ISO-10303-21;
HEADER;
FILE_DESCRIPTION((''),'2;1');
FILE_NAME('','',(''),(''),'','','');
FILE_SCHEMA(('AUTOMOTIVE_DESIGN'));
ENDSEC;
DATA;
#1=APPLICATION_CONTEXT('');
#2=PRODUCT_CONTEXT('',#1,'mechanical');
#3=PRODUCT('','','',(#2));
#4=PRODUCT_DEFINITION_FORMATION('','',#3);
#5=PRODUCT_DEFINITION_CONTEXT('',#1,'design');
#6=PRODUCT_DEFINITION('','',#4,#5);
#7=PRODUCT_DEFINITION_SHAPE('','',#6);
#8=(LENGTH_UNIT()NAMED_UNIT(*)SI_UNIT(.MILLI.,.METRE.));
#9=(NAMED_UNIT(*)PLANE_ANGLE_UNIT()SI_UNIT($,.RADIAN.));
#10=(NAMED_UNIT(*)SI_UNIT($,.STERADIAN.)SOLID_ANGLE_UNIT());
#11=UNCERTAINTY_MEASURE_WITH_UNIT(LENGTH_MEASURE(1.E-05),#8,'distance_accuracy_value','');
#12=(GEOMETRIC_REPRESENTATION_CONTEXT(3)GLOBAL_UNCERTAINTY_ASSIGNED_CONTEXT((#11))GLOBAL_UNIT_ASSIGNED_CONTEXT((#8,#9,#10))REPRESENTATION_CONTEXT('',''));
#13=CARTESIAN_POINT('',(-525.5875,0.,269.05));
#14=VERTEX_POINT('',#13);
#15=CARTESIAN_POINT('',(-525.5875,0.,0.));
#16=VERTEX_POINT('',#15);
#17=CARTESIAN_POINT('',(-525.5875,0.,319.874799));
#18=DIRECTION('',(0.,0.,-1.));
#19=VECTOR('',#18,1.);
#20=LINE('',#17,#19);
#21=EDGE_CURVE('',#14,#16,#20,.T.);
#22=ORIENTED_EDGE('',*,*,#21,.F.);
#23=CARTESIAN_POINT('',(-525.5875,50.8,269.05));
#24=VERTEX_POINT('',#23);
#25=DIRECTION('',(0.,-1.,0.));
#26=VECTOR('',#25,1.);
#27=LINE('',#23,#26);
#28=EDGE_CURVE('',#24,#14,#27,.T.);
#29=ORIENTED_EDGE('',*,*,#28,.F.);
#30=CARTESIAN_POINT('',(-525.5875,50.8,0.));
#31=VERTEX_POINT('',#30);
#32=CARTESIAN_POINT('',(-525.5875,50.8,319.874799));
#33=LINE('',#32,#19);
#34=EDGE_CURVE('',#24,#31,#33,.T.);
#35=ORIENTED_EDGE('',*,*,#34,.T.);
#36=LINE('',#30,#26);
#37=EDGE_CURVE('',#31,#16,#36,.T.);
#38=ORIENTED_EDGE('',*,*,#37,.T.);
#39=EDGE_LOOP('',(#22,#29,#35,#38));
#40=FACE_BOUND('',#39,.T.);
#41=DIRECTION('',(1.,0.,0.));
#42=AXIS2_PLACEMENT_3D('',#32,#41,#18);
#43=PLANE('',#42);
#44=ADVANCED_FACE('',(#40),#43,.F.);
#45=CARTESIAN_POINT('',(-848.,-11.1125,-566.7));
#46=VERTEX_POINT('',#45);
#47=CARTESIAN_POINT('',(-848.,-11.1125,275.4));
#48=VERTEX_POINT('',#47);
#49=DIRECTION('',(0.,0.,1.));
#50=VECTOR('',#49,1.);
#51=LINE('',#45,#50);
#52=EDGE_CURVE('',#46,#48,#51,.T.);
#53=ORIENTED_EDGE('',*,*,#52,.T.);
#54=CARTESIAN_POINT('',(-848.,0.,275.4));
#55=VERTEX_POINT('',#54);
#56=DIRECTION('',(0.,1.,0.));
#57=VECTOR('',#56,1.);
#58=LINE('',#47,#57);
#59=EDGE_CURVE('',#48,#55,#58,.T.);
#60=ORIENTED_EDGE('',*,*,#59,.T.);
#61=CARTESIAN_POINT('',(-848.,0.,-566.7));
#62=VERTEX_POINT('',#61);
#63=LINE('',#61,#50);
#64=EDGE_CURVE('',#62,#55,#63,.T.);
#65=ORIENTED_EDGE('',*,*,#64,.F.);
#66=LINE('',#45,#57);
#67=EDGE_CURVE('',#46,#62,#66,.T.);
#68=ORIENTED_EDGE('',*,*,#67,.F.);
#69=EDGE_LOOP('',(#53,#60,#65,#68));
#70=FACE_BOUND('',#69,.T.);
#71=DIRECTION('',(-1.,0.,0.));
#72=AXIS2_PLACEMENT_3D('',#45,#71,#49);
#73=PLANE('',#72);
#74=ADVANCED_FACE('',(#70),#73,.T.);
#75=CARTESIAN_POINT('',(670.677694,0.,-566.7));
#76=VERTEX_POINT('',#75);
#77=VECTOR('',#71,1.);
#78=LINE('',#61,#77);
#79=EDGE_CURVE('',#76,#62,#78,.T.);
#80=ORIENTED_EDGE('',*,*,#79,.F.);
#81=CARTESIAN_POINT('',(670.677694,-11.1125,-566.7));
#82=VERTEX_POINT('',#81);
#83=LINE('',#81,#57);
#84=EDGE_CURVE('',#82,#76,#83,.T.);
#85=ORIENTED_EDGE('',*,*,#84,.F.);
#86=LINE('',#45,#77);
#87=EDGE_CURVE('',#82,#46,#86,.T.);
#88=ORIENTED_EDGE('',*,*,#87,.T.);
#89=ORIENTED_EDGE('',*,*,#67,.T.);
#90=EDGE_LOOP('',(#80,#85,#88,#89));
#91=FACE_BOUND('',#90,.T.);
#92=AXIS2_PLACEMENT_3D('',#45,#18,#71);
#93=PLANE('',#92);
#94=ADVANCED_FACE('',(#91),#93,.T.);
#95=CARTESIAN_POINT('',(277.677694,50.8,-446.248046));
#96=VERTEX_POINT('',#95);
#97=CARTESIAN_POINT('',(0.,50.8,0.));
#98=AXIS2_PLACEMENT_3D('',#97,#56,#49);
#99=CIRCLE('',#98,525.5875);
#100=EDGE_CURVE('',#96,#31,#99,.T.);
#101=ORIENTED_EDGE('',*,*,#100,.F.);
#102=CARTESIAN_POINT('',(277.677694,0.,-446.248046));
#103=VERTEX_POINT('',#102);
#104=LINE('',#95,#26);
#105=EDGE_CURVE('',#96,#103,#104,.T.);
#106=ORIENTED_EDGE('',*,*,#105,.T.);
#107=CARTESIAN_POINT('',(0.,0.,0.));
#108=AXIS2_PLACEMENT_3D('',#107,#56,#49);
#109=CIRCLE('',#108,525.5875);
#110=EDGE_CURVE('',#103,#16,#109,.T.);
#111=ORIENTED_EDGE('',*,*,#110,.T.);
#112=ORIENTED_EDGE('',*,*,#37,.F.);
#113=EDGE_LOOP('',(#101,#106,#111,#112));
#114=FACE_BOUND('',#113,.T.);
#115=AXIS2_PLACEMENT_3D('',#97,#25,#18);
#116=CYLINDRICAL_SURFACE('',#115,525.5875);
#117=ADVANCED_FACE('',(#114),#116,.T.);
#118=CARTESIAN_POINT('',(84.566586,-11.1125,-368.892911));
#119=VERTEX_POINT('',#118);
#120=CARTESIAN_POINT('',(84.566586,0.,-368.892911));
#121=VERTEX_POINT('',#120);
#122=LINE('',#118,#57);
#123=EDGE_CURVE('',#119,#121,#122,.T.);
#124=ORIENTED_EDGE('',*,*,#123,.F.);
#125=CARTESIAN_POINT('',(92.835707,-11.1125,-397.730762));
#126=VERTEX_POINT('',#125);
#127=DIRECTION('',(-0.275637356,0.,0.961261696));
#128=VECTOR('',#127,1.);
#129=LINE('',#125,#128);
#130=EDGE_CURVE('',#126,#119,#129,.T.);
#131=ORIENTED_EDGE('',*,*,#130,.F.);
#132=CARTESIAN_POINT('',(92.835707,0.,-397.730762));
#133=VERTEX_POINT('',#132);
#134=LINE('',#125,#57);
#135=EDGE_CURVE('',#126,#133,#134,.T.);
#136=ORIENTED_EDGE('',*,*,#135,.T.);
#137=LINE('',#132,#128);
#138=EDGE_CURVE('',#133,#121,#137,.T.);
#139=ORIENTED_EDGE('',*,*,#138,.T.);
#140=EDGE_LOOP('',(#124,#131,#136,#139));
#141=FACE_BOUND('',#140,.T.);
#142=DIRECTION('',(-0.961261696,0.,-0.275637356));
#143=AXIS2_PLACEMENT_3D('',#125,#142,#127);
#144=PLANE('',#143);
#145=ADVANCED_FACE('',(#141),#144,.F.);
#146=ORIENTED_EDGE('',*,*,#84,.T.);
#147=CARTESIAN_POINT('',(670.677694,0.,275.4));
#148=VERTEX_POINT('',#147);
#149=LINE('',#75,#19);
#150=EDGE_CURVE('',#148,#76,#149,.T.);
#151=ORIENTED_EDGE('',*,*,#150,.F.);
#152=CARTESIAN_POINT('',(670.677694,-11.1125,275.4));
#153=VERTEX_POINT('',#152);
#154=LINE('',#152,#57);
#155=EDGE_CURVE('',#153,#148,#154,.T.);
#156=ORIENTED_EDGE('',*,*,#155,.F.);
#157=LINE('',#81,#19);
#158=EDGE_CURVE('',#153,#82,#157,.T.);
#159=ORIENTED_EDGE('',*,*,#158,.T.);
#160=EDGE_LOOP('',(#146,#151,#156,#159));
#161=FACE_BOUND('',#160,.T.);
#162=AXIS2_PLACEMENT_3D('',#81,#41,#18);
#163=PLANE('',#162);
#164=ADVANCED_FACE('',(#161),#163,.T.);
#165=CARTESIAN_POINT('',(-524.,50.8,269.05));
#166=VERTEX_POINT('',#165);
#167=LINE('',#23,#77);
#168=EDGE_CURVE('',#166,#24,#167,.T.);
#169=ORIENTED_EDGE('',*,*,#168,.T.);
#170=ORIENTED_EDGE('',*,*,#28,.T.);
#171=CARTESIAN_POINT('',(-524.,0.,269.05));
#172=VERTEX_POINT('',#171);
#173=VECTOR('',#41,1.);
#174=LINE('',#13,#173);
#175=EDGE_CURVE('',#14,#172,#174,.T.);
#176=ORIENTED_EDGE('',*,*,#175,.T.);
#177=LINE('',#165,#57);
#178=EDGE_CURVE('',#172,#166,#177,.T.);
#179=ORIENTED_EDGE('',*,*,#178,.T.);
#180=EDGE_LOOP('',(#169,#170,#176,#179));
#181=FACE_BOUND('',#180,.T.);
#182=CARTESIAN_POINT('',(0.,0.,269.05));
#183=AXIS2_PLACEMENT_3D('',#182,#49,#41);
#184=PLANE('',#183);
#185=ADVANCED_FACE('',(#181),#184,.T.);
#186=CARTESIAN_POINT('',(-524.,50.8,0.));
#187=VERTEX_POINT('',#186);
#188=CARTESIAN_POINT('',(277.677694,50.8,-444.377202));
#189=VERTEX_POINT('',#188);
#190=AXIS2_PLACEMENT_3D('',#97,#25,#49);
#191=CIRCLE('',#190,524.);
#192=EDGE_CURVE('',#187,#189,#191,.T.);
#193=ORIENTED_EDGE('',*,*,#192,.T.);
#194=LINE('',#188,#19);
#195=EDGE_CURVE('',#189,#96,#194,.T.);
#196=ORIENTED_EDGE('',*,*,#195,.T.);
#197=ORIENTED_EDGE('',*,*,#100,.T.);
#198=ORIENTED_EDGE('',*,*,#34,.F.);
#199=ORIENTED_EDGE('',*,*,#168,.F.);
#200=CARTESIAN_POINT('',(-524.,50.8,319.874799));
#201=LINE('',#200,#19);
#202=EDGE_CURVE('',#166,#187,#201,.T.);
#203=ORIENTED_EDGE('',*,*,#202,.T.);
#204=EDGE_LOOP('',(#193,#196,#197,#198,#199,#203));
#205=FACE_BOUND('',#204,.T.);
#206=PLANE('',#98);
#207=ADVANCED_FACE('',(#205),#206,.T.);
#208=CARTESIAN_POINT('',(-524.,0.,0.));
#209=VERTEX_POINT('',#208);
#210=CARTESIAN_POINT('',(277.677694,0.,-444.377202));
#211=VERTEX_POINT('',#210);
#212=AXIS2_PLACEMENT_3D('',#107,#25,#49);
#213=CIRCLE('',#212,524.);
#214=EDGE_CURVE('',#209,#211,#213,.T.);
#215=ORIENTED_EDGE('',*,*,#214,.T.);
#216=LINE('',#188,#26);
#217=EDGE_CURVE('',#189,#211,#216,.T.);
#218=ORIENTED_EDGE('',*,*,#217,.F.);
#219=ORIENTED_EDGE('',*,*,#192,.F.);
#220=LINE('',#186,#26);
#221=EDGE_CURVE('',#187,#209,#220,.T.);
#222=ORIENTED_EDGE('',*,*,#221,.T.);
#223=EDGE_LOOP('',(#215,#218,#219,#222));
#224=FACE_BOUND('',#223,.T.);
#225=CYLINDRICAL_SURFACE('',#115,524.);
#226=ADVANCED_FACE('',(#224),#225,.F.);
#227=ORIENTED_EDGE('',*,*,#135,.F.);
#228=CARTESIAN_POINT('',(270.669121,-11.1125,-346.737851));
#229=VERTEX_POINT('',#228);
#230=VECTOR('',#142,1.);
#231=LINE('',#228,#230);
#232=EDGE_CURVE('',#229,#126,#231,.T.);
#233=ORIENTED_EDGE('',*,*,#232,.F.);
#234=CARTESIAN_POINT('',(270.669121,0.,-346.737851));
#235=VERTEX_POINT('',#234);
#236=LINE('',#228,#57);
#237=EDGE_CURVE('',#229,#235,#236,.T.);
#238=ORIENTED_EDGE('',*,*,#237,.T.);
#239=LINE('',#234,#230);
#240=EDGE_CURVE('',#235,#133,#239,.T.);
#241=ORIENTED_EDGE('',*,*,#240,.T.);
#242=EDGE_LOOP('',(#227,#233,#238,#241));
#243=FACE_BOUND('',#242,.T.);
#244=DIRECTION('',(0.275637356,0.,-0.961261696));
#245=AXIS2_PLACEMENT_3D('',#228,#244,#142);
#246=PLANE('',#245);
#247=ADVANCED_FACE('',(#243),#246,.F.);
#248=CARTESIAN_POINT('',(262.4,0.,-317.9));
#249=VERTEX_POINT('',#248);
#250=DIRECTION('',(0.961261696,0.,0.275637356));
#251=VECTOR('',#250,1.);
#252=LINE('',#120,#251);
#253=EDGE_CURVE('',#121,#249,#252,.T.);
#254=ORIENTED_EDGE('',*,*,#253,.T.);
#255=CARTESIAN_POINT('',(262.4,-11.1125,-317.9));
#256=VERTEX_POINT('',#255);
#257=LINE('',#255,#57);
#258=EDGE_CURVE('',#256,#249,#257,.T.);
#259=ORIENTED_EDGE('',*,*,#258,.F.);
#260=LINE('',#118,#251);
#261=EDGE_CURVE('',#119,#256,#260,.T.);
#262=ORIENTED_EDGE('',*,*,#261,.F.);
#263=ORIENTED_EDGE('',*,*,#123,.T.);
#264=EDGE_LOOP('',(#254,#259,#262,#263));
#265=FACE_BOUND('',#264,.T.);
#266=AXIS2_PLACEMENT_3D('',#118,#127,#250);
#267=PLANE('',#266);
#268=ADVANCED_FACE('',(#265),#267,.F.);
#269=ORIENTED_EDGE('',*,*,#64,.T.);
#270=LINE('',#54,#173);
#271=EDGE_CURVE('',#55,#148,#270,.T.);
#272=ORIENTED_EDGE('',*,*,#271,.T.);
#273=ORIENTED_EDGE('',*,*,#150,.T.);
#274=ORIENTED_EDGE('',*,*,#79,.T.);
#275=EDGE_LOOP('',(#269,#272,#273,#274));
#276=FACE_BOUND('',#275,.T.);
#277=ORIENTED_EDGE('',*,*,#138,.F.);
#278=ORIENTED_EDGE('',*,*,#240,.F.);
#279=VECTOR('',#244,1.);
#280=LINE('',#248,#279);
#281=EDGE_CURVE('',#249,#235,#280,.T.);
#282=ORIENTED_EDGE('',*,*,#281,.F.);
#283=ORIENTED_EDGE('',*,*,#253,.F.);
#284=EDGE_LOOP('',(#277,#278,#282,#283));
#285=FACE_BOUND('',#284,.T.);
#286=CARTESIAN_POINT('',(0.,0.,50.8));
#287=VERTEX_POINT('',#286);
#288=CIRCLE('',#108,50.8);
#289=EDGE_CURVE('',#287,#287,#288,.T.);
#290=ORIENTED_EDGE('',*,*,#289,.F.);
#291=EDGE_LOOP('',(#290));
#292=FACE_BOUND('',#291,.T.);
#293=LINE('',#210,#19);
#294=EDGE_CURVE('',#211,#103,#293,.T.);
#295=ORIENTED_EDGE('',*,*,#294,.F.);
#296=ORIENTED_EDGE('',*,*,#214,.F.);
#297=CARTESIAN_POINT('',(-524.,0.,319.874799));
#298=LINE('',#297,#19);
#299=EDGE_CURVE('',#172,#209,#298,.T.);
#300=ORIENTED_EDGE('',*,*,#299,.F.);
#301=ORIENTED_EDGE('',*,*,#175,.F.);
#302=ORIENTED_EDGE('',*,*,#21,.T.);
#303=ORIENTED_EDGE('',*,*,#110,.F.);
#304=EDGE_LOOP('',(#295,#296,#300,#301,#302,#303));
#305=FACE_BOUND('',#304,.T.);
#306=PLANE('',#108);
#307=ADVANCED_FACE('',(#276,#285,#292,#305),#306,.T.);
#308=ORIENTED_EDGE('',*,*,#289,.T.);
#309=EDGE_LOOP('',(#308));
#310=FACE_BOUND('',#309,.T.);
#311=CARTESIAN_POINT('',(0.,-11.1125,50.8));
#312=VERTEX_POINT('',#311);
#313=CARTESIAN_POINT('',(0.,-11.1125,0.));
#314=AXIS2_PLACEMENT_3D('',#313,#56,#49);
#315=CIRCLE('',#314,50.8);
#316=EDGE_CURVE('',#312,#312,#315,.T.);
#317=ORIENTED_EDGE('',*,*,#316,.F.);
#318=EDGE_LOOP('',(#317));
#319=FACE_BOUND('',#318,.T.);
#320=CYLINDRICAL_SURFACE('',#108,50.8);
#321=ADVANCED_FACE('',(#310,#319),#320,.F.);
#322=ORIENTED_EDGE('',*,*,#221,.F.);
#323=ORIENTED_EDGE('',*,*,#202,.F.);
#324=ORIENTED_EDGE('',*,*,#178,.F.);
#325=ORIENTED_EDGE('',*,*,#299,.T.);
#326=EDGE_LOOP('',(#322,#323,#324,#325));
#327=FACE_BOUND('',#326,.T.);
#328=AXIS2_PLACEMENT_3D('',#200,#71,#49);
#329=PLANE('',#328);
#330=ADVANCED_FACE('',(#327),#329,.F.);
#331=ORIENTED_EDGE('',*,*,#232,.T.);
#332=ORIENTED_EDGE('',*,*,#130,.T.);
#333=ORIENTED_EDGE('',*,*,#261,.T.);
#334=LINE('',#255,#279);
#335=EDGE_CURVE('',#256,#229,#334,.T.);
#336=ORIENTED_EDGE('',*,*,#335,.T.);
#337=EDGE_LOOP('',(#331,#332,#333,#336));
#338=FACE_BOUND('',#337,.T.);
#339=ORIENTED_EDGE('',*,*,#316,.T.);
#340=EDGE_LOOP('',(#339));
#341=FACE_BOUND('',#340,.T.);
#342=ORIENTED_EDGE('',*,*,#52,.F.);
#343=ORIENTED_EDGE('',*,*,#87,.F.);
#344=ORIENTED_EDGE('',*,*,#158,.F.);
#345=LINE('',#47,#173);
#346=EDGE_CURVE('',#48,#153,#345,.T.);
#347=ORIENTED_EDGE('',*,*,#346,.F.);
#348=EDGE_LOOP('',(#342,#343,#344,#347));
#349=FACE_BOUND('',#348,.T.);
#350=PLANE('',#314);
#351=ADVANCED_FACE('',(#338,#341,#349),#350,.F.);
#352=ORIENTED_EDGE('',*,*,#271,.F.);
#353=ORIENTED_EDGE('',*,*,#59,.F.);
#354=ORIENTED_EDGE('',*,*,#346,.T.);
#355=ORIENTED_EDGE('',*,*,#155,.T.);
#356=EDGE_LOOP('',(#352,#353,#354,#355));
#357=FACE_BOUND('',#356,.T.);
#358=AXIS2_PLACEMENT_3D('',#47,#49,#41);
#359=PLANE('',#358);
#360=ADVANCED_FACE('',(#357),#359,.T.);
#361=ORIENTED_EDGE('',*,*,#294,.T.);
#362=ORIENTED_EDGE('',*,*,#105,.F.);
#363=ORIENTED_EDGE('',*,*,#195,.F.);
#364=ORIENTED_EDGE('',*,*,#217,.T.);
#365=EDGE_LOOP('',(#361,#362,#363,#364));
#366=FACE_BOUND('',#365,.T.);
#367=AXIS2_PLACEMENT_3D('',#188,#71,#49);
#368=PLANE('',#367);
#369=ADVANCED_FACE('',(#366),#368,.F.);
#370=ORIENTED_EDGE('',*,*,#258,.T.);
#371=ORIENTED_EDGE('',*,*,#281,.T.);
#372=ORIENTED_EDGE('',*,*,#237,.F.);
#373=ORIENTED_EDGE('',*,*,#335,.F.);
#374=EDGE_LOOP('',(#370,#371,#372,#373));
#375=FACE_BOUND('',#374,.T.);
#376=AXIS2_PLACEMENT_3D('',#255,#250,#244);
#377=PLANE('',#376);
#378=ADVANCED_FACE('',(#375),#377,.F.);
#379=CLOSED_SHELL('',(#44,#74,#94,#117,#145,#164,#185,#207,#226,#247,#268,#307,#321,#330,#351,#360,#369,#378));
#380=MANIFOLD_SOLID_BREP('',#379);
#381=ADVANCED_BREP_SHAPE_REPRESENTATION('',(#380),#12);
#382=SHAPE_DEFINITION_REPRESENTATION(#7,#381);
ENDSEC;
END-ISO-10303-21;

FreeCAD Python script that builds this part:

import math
import FreeCAD as App
import Part
import Sketcher
Q = App.Units.Quantity


def add_polygon(sketch, points):
    """Adds a closed chain of lines whose ends are joined by coincident constraints."""
    first, n = sketch.GeometryCount, len(points)
    for a, b in zip(points, points[1:] + points[:1]):
        sketch.addGeometry(Part.LineSegment(App.Vector(*a, 0), App.Vector(*b, 0)), False)
    for i in range(n):
        sketch.addConstraint(Sketcher.Constraint("Coincident", first + i, 2, first + (i + 1) % n, 1))

doc = App.newDocument("Part")
body = doc.addObject("PartDesign::Body", "Body")

sketch1 = doc.addObject("Sketcher::SketchObject", "Sketch")
body.addObject(sketch1)
sketch1.AttachmentSupport = (doc.XZ_Plane, [""])
sketch1.MapMode = "FlatFace"
sketch1.addGeometry([
    Part.LineSegment(App.Vector(-525.5875, 0, 0), App.Vector(-524, 0, 0)),
    Part.ArcOfCircle(Part.Circle(App.Vector(0, 0, 0), App.Vector(0, 0, 1), 524), math.radians(180), math.radians(302)),
    Part.LineSegment(App.Vector(277.677694, -444.377202, 0), App.Vector(277.677694, -446.248046, 0)),
    Part.ArcOfCircle(Part.Circle(App.Vector(0, 0, 0), App.Vector(0, 0, 1), 525.5875), math.radians(180), math.radians(301.891925)),
], False)
sketch1.addConstraint([
    Sketcher.Constraint("Coincident", 0, 2, 1, 1),
    Sketcher.Constraint("Coincident", 1, 2, 2, 1),
    Sketcher.Constraint("Coincident", 2, 2, 3, 2),
    Sketcher.Constraint("Coincident", 3, 1, 0, 1),
    Sketcher.Constraint("Horizontal", 0),
    Sketcher.Constraint("Vertical", 2),
    Sketcher.Constraint("Coincident", 1, 3, -1, 1),
    Sketcher.Constraint("Coincident", 3, 3, -1, 1),
    Sketcher.Constraint("PointOnObject", 0, 2, -1),
    Sketcher.Constraint("Radius", 1, Q("524 mm")),
    Sketcher.Constraint("Radius", 3, Q("525.5875 mm")),
    Sketcher.Constraint("DistanceX", -1, 1, 2, 2, Q("277.677694 mm")),
])
pad1 = doc.addObject("PartDesign::Pad", "Pad")
body.addObject(pad1)
pad1.Profile = sketch1
pad1.Length = 50.8
pad1.Reversed = True

sketch2 = doc.addObject("Sketcher::SketchObject", "Sketch001")
body.addObject(sketch2)
sketch2.AttachmentSupport = (doc.XZ_Plane, [""])
sketch2.MapMode = "FlatFace"
add_polygon(sketch2, [(-848, -566.7), (-848, 275.4), (670.677694, 275.4), (670.677694, -566.7)])
sketch2.addConstraint([
    Sketcher.Constraint("Vertical", 0),
    Sketcher.Constraint("Horizontal", 1),
    Sketcher.Constraint("Vertical", 2),
    Sketcher.Constraint("Horizontal", 3),
    Sketcher.Constraint("DistanceY", 0, 1, 0, 2, Q("842.1 mm")),
    Sketcher.Constraint("DistanceX", 0, 2, -1, 1, Q("848 mm")),
    Sketcher.Constraint("DistanceY", -1, 1, 0, 2, Q("275.4 mm")),
    Sketcher.Constraint("DistanceX", 1, 1, 1, 2, Q("1518.677694 mm")),
])
pad2 = doc.addObject("PartDesign::Pad", "Pad001")
body.addObject(pad2)
pad2.Profile = sketch2
pad2.Length = 11.1125

sketch3 = doc.addObject("Sketcher::SketchObject", "Sketch002")
body.addObject(sketch3)
sketch3.AttachmentSupport = (doc.XZ_Plane, [""])
sketch3.MapMode = "FlatFace"
sketch3.addGeometry(Part.Circle(App.Vector(0, 0, 0), App.Vector(0, 0, 1), 50.8), False)
sketch3.addConstraint([
    Sketcher.Constraint("Coincident", 0, 3, -1, 1),
    Sketcher.Constraint("Diameter", 0, Q("101.6 mm")),
])
doc.recompute()
hole = doc.addObject("PartDesign::Hole", "Hole")
body.addObject(hole)
hole.Profile = sketch3
hole.ThreadType = "None"
hole.Diameter = 101.6
hole.DepthType = "ThroughAll"
hole.Reversed = True

sketch4 = doc.addObject("Sketcher::SketchObject", "Sketch003")
body.addObject(sketch4)
sketch4.AttachmentSupport = (doc.XY_Plane, [""])
sketch4.MapMode = "FlatFace"
add_polygon(sketch4, [(-525.5875, 50.8), (-525.5875, 0), (-524, 0), (-524, 50.8)])
sketch4.addConstraint([
    Sketcher.Constraint("Vertical", 0),
    Sketcher.Constraint("Horizontal", 1),
    Sketcher.Constraint("Vertical", 2),
    Sketcher.Constraint("Horizontal", 3),
    Sketcher.Constraint("PointOnObject", 0, 2, -1),
    Sketcher.Constraint("DistanceY", 0, 2, 0, 1, Q("50.8 mm")),
    Sketcher.Constraint("DistanceX", 1, 2, -1, 1, Q("524 mm")),
    Sketcher.Constraint("DistanceX", 1, 1, 1, 2, Q("1.5875 mm")),
])
pad3 = doc.addObject("PartDesign::Pad", "Pad002")
body.addObject(pad3)
pad3.Profile = sketch4
pad3.Length = 269.05

sketch5 = doc.addObject("Sketcher::SketchObject", "Sketch004")
body.addObject(sketch5)
sketch5.AttachmentSupport = (doc.XZ_Plane, [""])
sketch5.MapMode = "FlatFace"
add_polygon(sketch5, [(270.669121, -346.737851), (92.835707, -397.730762), (84.566586, -368.892911), (262.4, -317.9)])
sketch5.addConstraint([
    Sketcher.Constraint("Perpendicular", 0, 1),
    Sketcher.Constraint("Perpendicular", 1, 2),
    Sketcher.Constraint("Perpendicular", 2, 3),
    Sketcher.Constraint("Angle", 0, Q("-164 deg")),
    Sketcher.Constraint("Distance", 0, Q("185 mm")),
    Sketcher.Constraint("Distance", 1, Q("30 mm")),
    Sketcher.Constraint("DistanceX", -1, 1, 2, 2, Q("262.4 mm")),
    Sketcher.Constraint("DistanceY", 2, 2, -1, 1, Q("317.9 mm")),
])
pocket1 = doc.addObject("PartDesign::Pocket", "Pocket")
body.addObject(pocket1)
pocket1.Profile = sketch5
pocket1.Type = "ThroughAll"
pocket1.Reversed = True

doc.recompute()
